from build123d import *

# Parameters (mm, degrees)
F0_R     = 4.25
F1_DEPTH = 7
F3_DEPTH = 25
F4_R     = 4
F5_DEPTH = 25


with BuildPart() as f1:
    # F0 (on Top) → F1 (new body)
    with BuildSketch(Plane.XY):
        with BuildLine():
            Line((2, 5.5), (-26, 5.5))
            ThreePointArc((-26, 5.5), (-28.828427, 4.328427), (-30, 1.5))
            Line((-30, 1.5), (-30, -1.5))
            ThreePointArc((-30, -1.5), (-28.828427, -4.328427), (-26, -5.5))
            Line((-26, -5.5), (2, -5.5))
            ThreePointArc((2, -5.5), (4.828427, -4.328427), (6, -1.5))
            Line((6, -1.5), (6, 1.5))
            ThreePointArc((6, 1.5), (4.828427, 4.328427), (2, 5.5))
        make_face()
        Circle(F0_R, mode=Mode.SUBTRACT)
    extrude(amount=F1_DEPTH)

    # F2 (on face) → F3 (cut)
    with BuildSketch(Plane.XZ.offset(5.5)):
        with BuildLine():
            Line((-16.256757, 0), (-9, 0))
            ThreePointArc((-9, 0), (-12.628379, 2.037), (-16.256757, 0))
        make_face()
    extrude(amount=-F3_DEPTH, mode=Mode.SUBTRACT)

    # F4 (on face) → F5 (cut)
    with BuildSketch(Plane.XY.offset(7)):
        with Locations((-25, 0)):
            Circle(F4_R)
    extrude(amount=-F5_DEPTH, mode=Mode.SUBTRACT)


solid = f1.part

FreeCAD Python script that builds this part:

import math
import FreeCAD as App
import Part
import Sketcher
Q = App.Units.Quantity

doc = App.newDocument("Part")
body = doc.addObject("PartDesign::Body", "Body")

# Sketch on XY plane
sketch1 = body.newObject("Sketcher::SketchObject", "Sketch")
sketch1.AttachmentSupport = (doc.getObject("XY_Plane"), [""])
sketch1.MapMode = "FlatFace"
sketch1.addGeometry([
    Part.LineSegment(App.Vector(2, 5.5, 0), App.Vector(-26, 5.5, 0)),  # 0
    Part.ArcOfCircle(Part.Circle(App.Vector(-26, 1.5, 0), App.Vector(0, 0, 1), 4), math.radians(90), math.radians(180)),  # 1
    Part.LineSegment(App.Vector(-30, 1.5, 0), App.Vector(-30, -1.5, 0)),  # 2
    Part.ArcOfCircle(Part.Circle(App.Vector(-26, -1.5, 0), App.Vector(0, 0, 1), 4), math.radians(-180), math.radians(-90)),  # 3
    Part.LineSegment(App.Vector(-26, -5.5, 0), App.Vector(2, -5.5, 0)),  # 4
    Part.ArcOfCircle(Part.Circle(App.Vector(2, -1.5, 0), App.Vector(0, 0, 1), 4), math.radians(-90), math.radians(0)),  # 5
    Part.LineSegment(App.Vector(6, -1.5, 0), App.Vector(6, 1.5, 0)),  # 6
    Part.ArcOfCircle(Part.Circle(App.Vector(2, 1.5, 0), App.Vector(0, 0, 1), 4), math.radians(0), math.radians(90)),  # 7
    Part.Circle(App.Vector(0, 0, 0), App.Vector(0, 0, 1), 4.2),  # 8
], False)
sketch1.addConstraint([
    Sketcher.Constraint("Tangent", 0, 2, 1, 1),
    Sketcher.Constraint("Tangent", 1, 2, 2, 1),
    Sketcher.Constraint("Tangent", 2, 2, 3, 1),
    Sketcher.Constraint("Tangent", 3, 2, 4, 1),
    Sketcher.Constraint("Tangent", 4, 2, 5, 1),
    Sketcher.Constraint("Tangent", 5, 2, 6, 1),
    Sketcher.Constraint("Tangent", 6, 2, 7, 1),
    Sketcher.Constraint("Tangent", 7, 2, 0, 1),
    Sketcher.Constraint("Horizontal", 0),
    Sketcher.Constraint("Vertical", 2),
    Sketcher.Constraint("Horizontal", 4),
    Sketcher.Constraint("Vertical", 6),
    Sketcher.Constraint("Coincident", 8, 3, -1, 1),
    Sketcher.Constraint("Equal", 1, 3),
    Sketcher.Constraint("Equal", 3, 5),
    Sketcher.Constraint("Equal", 5, 7),
    Sketcher.Constraint("Radius", 1, Q("4 mm")),
    Sketcher.Constraint("Diameter", 8, Q("8.5 mm")),
    Sketcher.Constraint("DistanceX", 0, 2, 0, 1, Q("28 mm")),
    Sketcher.Constraint("DistanceY", 2, 2, 2, 1, Q("3 mm")),
    Sketcher.Constraint("DistanceX", 1, 3, -1, 1, Q("26 mm")),
    Sketcher.Constraint("DistanceY", -1, 1, 1, 3, Q("1.5 mm")),
])
pad1 = body.newObject("PartDesign::Pad", "Pad")
pad1.Profile = sketch1
pad1.Length = 7

# Sketch on XZ plane
sketch2 = body.newObject("Sketcher::SketchObject", "Sketch001")
sketch2.AttachmentSupport = (doc.getObject("XZ_Plane"), [""])
sketch2.MapMode = "FlatFace"
sketch2.AttachmentOffset = App.Placement(App.Vector(0, 0, 5.5), App.Rotation())
sketch2.addGeometry([
    Part.LineSegment(App.Vector(-16.3, 0, 0), App.Vector(-9, 0, 0)),
    Part.ArcOfCircle(Part.Circle(App.Vector(-12.6, -2.2, 0), App.Vector(0, 0, 1), 4.2), math.radians(31), math.radians(149)),
], False)
sketch2.addConstraint([
    Sketcher.Constraint("Coincident", 0, 1, 1, 2),
    Sketcher.Constraint("Coincident", 1, 1, 0, 2),
    Sketcher.Constraint("Horizontal", 0),
    Sketcher.Constraint("PointOnObject", 0, 1, -1),
    Sketcher.Constraint("Radius", 1, Q("4.25 mm")),
    Sketcher.Constraint("DistanceX", 1, 1, -1, 1, Q("9 mm")),
    Sketcher.Constraint("DistanceY", 1, 3, -1, 1, Q("2.213 mm")),
])
pocket1 = body.newObject("PartDesign::Pocket", "Pocket")
pocket1.Profile = sketch2
pocket1.Length = 25

# Sketch on XY plane
sketch3 = body.newObject("Sketcher::SketchObject", "Sketch002")
sketch3.AttachmentSupport = (doc.getObject("XY_Plane"), [""])
sketch3.MapMode = "FlatFace"
sketch3.AttachmentOffset = App.Placement(App.Vector(0, 0, 7), App.Rotation())
sketch3.addGeometry(Part.Circle(App.Vector(-25, 0, 0), App.Vector(0, 0, 1), 4), False)
sketch3.addConstraint([
    Sketcher.Constraint("PointOnObject", 0, 3, -1),
    Sketcher.Constraint("Diameter", 0, Q("8 mm")),
    Sketcher.Constraint("DistanceX", 0, 3, -1, 1, Q("25 mm")),
])
pocket2 = body.newObject("PartDesign::Pocket", "Pocket001")
pocket2.Profile = sketch3
pocket2.Length = 25

doc.recompute()
